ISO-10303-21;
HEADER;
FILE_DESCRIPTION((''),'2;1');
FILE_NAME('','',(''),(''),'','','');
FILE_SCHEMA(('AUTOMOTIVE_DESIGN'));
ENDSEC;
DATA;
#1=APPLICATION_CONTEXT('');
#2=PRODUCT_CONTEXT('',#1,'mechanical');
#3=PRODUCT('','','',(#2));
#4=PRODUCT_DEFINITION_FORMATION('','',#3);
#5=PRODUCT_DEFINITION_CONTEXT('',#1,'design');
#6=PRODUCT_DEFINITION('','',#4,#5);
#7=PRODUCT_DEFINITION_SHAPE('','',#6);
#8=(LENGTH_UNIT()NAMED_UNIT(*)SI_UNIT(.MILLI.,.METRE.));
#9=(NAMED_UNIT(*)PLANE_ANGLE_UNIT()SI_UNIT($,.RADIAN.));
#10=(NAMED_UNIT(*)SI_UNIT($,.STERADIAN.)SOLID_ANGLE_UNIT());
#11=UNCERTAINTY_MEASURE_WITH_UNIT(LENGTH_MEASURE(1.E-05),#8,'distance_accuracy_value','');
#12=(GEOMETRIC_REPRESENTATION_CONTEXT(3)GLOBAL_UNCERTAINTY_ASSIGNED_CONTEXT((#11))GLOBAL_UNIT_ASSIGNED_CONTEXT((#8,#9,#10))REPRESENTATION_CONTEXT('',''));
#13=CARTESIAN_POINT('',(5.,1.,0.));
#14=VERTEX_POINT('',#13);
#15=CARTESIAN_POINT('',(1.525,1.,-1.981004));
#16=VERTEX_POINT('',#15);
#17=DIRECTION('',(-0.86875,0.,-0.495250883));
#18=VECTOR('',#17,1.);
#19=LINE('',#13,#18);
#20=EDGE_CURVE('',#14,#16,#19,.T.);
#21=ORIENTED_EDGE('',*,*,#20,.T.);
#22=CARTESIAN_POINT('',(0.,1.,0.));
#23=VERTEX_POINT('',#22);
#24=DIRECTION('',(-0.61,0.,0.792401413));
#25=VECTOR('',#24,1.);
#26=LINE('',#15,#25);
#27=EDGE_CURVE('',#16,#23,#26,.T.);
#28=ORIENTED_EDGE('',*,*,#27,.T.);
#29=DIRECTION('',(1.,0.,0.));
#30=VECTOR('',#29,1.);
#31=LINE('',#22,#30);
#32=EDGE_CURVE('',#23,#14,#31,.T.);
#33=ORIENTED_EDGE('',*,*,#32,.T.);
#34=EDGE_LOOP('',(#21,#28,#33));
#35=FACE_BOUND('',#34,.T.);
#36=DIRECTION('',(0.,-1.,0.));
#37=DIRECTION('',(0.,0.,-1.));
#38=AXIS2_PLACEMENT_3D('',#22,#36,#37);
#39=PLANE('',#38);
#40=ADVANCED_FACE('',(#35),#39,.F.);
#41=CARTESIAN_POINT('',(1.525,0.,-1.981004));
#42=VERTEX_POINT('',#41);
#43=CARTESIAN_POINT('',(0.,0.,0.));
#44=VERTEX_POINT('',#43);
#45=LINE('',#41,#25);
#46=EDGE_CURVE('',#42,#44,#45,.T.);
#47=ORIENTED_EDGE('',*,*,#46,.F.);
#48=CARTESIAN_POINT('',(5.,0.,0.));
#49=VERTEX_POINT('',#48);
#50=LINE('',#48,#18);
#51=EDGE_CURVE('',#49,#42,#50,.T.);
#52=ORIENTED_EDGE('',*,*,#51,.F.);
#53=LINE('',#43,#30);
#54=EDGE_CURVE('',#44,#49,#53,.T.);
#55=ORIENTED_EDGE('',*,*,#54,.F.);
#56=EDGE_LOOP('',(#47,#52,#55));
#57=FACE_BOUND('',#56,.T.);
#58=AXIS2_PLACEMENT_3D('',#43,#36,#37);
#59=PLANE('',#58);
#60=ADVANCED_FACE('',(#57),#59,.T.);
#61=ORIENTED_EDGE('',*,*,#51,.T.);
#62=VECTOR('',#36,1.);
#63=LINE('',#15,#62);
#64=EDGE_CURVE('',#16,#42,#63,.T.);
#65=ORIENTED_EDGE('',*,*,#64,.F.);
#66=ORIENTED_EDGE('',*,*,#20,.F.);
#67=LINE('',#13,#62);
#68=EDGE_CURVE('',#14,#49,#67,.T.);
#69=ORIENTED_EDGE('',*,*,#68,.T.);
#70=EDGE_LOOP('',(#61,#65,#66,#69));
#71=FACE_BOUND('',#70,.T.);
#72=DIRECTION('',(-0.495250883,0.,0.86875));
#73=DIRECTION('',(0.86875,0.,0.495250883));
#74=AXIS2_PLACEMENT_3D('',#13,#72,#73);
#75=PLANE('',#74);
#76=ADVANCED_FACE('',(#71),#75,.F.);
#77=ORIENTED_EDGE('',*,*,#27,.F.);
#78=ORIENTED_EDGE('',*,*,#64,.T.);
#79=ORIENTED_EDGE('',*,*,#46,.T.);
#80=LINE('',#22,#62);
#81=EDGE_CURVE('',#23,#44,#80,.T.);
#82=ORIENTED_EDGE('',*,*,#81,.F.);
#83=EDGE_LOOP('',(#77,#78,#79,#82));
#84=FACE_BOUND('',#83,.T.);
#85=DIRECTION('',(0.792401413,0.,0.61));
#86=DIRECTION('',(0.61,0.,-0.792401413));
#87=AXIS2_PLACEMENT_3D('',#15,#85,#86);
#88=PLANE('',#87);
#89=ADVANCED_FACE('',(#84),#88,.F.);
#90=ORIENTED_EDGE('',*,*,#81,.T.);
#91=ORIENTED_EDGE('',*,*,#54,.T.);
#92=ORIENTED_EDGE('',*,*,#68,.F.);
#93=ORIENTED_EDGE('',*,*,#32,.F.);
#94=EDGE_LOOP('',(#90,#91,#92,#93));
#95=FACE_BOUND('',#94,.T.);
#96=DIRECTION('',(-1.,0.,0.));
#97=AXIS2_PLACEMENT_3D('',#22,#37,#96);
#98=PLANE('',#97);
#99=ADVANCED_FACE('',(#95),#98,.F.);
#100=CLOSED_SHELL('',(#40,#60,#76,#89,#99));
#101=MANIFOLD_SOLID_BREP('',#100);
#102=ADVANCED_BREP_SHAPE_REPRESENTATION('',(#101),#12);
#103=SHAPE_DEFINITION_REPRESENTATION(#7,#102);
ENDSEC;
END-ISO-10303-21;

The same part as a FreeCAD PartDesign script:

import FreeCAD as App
import Part
import Sketcher
Q = App.Units.Quantity


def add_polygon(sketch, points):
    """Adds a closed chain of lines whose ends are joined by coincident constraints."""
    first, n = sketch.GeometryCount, len(points)
    for a, b in zip(points, points[1:] + points[:1]):
        sketch.addGeometry(Part.LineSegment(App.Vector(*a, 0), App.Vector(*b, 0)), False)
    for i in range(n):
        sketch.addConstraint(Sketcher.Constraint("Coincident", first + i, 2, first + (i + 1) % n, 1))

doc = App.newDocument("Part")
body = doc.addObject("PartDesign::Body", "Body")

sketch1 = doc.addObject("Sketcher::SketchObject", "Sketch")
body.addObject(sketch1)
sketch1.AttachmentSupport = (doc.XZ_Plane, [""])
sketch1.MapMode = "FlatFace"
add_polygon(sketch1, [(0, 0), (5, 0), (1.5, -2)])
sketch1.addConstraint(Sketcher.Constraint("Horizontal", 0))
sketch1.addConstraint(Sketcher.Constraint("Coincident", 2, 2, -1, 1))
sketch1.addConstraint(Sketcher.Constraint("DistanceX", 0, 1, 0, 2, Q("5 mm")))
sketch1.addConstraint(Sketcher.Constraint("Distance", 1, Q("4 mm")))
sketch1.addConstraint(Sketcher.Constraint("Distance", 2, Q("2.5 mm")))
pad1 = doc.addObject("PartDesign::Pad", "Pad")
body.addObject(pad1)
pad1.Profile = sketch1
pad1.Length = 1
pad1.Reversed = True

doc.recompute()
